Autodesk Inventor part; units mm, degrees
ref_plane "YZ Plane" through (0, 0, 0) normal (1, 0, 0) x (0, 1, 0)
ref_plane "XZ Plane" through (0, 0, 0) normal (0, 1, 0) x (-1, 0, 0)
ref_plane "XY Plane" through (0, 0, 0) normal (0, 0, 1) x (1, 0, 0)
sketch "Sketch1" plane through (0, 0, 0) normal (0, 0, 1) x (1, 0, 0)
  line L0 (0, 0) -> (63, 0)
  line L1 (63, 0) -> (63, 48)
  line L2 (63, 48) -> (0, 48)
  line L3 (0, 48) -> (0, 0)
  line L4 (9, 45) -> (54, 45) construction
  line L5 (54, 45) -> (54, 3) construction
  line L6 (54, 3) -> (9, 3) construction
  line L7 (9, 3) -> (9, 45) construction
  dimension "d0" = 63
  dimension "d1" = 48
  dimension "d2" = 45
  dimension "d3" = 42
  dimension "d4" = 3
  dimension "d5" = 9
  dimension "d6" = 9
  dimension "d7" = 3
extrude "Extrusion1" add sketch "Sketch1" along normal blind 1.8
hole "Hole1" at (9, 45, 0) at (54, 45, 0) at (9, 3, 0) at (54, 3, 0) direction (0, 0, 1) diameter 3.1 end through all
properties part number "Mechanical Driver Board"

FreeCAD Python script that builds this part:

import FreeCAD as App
import Part
import Sketcher
from FreeCAD import Vector
Q = App.Units.Quantity


def add_polygon(sketch, points):
    """Adds a closed chain of lines whose ends are joined by coincident constraints."""
    first, n = sketch.GeometryCount, len(points)
    for a, b in zip(points, points[1:] + points[:1]):
        sketch.addGeometry(Part.LineSegment(App.Vector(*a, 0), App.Vector(*b, 0)), False)
    for i in range(n):
        sketch.addConstraint(Sketcher.Constraint("Coincident", first + i, 2, first + (i + 1) % n, 1))

doc = App.newDocument("Part")
body = doc.addObject("PartDesign::Body", "Body")

sketch1 = body.newObject("Sketcher::SketchObject", "Sketch")
sketch1.AttachmentSupport = (doc.getObject("XY_Plane"), [""])
sketch1.MapMode = "FlatFace"
add_polygon(sketch1, [(0, 48), (0, 0), (63, 0), (63, 48)])
sketch1.addConstraint(Sketcher.Constraint("Vertical", 0))
sketch1.addConstraint(Sketcher.Constraint("Horizontal", 1))
sketch1.addConstraint(Sketcher.Constraint("Vertical", 2))
sketch1.addConstraint(Sketcher.Constraint("Horizontal", 3))
sketch1.addConstraint(Sketcher.Constraint("Coincident", 0, 2, -1, 1))
sketch1.addConstraint(Sketcher.Constraint("DistanceX", 1, 1, 1, 2, Q("63 mm")))
sketch1.addConstraint(Sketcher.Constraint("DistanceY", 0, 2, 0, 1, Q("48 mm")))
pad1 = body.newObject("PartDesign::Pad", "Pad")
pad1.Profile = sketch1
pad1.Length = 1.8

sketch2 = body.newObject("Sketcher::SketchObject", "Sketch001")
sketch2.AttachmentSupport = (doc.getObject("XY_Plane"), [""])
sketch2.MapMode = "FlatFace"
sketch2.addGeometry(Part.Circle(Vector(9, 45, 0), Vector(0, 0, 1), 1.55), False)
sketch2.addGeometry(Part.Circle(Vector(54, 45, 0), Vector(0, 0, 1), 1.55), False)
sketch2.addGeometry(Part.Circle(Vector(9, 3, 0), Vector(0, 0, 1), 1.55), False)
sketch2.addGeometry(Part.Circle(Vector(54, 3, 0), Vector(0, 0, 1), 1.55), False)
sketch2.addConstraint(Sketcher.Constraint("Equal", 0, 1))
sketch2.addConstraint(Sketcher.Constraint("Equal", 1, 2))
sketch2.addConstraint(Sketcher.Constraint("Equal", 2, 3))
sketch2.addConstraint(Sketcher.Constraint("Horizontal", 0, 3, 1, 3))
sketch2.addConstraint(Sketcher.Constraint("Horizontal", 2, 3, 3, 3))
sketch2.addConstraint(Sketcher.Constraint("Vertical", 0, 3, 2, 3))
sketch2.addConstraint(Sketcher.Constraint("Vertical", 1, 3, 3, 3))
sketch2.addConstraint(Sketcher.Constraint("Diameter", 0, Q("3.1 mm")))
sketch2.addConstraint(Sketcher.Constraint("DistanceX", -1, 1, 0, 3, Q("9 mm")))
sketch2.addConstraint(Sketcher.Constraint("DistanceY", -1, 1, 0, 3, Q("45 mm")))
sketch2.addConstraint(Sketcher.Constraint("DistanceX", -1, 1, 1, 3, Q("54 mm")))
sketch2.addConstraint(Sketcher.Constraint("DistanceY", -1, 1, 2, 3, Q("3 mm")))
doc.recompute()
hole = body.newObject("PartDesign::Hole", "Hole")
hole.Profile = sketch2
hole.ThreadType = "None"
hole.Diameter = 3.1
hole.DepthType = "ThroughAll"
hole.Reversed = True

doc.recompute()
